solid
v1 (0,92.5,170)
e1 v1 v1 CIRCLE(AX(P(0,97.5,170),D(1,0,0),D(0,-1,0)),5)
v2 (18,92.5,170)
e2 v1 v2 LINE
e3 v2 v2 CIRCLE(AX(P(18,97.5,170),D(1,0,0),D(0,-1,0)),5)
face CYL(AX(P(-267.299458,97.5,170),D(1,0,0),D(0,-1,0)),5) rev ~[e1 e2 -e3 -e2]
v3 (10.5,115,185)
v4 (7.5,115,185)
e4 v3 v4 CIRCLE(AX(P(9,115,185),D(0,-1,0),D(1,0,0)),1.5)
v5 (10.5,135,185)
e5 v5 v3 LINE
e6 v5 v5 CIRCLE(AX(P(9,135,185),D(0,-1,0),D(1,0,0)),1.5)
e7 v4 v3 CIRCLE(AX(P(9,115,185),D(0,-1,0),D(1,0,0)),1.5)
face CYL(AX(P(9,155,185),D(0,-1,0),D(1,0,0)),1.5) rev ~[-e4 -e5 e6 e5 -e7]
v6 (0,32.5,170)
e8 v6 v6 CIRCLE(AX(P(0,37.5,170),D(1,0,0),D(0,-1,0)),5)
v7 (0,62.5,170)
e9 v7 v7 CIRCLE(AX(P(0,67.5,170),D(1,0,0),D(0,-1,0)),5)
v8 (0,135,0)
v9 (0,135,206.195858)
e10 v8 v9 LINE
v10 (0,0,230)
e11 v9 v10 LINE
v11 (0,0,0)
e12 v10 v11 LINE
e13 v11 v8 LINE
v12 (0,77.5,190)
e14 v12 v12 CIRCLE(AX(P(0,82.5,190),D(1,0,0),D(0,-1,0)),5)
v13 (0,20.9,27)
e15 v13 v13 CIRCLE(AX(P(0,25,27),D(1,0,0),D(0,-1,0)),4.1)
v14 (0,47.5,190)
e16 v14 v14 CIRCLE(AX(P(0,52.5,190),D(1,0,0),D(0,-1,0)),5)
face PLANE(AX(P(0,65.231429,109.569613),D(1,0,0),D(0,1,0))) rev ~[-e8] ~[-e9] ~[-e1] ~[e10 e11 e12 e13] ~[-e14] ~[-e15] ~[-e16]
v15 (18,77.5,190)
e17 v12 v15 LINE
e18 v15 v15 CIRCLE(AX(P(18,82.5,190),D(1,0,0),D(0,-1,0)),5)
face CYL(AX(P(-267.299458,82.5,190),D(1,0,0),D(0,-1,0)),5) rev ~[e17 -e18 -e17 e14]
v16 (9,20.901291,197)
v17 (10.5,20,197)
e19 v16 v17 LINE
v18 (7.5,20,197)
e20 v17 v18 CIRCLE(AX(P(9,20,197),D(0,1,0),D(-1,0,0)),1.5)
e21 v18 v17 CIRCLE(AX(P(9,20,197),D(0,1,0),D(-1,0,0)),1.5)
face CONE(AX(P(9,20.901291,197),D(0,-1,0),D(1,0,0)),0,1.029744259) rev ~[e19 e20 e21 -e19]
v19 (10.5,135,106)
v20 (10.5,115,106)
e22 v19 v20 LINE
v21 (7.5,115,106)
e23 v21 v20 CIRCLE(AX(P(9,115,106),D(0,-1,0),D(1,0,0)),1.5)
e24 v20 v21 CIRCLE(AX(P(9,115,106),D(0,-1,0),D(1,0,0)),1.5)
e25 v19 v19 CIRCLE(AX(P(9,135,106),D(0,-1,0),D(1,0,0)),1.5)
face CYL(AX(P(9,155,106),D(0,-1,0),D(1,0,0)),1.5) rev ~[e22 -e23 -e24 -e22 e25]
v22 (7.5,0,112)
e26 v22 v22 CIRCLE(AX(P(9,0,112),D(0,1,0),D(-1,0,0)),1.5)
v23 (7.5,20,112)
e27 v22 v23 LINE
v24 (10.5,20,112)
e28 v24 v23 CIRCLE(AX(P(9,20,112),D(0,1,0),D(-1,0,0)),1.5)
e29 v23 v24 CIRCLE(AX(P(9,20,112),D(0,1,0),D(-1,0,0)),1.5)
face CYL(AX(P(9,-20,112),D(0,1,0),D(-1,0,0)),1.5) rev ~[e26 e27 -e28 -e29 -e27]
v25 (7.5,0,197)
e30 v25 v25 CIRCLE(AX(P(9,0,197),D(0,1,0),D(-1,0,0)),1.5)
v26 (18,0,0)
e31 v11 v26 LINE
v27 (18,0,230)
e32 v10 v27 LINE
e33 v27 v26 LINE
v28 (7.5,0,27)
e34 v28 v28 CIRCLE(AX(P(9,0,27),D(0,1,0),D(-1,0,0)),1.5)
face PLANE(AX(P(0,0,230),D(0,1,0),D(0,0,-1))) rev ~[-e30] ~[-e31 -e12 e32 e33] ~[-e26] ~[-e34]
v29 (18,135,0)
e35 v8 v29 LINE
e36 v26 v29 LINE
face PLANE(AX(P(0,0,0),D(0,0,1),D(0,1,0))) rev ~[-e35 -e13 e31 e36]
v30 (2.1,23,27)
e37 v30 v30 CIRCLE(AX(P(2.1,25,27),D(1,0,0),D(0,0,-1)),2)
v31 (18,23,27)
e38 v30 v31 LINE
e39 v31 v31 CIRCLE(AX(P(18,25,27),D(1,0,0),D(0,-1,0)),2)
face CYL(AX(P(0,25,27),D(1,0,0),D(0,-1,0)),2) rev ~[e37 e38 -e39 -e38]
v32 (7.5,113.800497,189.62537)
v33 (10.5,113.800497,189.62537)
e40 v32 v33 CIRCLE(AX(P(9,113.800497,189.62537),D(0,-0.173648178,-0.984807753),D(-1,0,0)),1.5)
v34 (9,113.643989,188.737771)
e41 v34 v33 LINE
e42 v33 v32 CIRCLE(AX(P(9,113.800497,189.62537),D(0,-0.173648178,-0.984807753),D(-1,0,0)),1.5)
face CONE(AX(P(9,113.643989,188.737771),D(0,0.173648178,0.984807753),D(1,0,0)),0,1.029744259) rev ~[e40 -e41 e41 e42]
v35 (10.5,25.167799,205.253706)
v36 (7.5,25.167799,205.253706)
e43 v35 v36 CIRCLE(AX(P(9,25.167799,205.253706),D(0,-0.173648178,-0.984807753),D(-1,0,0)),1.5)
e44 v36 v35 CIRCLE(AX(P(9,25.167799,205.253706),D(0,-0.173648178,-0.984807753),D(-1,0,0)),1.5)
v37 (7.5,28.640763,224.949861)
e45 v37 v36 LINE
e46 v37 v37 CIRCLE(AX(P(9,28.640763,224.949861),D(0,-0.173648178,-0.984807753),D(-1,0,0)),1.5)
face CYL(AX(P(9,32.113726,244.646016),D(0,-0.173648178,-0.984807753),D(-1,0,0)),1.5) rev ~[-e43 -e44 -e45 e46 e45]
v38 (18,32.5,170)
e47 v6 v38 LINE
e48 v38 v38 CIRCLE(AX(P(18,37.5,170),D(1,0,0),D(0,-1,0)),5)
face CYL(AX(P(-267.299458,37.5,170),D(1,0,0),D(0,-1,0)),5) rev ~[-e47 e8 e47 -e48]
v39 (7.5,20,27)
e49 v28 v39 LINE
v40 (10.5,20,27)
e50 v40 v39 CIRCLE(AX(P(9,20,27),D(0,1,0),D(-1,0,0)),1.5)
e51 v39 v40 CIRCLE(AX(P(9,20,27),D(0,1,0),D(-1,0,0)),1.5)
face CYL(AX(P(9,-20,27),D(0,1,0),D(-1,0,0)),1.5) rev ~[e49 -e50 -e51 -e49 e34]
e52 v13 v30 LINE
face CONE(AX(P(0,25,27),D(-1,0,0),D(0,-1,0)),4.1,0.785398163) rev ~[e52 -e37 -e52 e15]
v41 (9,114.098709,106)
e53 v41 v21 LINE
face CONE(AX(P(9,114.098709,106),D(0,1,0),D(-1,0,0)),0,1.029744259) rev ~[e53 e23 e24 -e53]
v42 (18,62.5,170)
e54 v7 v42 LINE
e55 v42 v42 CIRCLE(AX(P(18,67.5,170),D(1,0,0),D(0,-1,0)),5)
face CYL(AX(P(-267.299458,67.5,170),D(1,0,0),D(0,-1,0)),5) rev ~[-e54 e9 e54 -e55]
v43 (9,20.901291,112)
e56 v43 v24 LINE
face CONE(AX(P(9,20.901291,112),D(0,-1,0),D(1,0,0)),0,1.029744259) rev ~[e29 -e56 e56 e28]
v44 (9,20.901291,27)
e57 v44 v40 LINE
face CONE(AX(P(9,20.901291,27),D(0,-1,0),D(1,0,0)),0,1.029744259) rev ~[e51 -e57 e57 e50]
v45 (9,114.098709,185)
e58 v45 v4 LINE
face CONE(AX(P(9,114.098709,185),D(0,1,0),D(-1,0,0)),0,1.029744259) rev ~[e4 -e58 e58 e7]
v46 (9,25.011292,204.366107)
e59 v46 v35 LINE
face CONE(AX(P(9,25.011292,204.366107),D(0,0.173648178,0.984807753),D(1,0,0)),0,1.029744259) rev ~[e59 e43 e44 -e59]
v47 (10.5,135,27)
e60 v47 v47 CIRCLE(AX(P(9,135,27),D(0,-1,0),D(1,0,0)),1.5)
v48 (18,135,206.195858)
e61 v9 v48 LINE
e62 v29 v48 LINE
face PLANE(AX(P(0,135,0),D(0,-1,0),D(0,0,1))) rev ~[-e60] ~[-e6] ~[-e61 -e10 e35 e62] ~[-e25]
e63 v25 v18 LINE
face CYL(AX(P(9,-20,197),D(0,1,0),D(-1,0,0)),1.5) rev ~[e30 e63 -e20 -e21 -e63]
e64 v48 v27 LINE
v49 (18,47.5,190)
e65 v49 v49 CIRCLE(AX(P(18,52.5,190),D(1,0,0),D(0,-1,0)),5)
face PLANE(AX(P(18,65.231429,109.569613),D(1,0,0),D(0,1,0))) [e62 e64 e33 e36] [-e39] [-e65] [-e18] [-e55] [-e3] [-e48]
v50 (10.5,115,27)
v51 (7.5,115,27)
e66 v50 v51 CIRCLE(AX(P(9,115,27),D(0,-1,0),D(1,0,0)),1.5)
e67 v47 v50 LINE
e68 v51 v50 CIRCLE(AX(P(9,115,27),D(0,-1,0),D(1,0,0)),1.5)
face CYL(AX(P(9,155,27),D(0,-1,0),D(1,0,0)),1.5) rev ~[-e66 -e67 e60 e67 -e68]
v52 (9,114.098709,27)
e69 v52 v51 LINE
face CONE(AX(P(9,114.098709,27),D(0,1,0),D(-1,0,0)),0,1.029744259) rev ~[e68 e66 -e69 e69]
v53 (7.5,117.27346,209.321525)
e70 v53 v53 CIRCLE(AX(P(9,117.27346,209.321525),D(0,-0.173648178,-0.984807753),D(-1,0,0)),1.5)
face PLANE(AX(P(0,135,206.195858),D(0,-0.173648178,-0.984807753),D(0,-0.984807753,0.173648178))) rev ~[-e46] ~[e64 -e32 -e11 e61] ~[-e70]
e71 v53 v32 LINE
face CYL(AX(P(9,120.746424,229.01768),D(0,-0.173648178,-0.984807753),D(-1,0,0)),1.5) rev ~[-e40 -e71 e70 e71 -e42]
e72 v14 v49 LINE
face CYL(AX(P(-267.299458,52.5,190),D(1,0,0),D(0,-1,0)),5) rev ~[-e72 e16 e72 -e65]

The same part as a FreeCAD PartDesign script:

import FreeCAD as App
import Part
import Sketcher
from FreeCAD import Vector
Q = App.Units.Quantity

doc = App.newDocument("Part")
body = doc.addObject("PartDesign::Body", "Body")

# Sketch on YZ plane
sketch1 = body.newObject("Sketcher::SketchObject", "Sketch")
sketch1.AttachmentSupport = (doc.getObject("YZ_Plane"), [""])
sketch1.MapMode = "FlatFace"
sketch1.addGeometry([
    Part.LineSegment(Vector(0, 230, 0), Vector(0, 0, 0)),
    Part.LineSegment(Vector(0, 0, 0), Vector(135, 0, 0)),
    Part.LineSegment(Vector(135, 0, 0), Vector(135, 206, 0)),
    Part.LineSegment(Vector(135, 206, 0), Vector(0, 230, 0)),
], False)
sketch1.addConstraint([
    Sketcher.Constraint("Coincident", 0, 2, 1, 1),
    Sketcher.Constraint("Coincident", 1, 2, 2, 1),
    Sketcher.Constraint("Coincident", 2, 2, 3, 1),
    Sketcher.Constraint("Coincident", 3, 2, 0, 1),
    Sketcher.Constraint("Vertical", 0),
    Sketcher.Constraint("Horizontal", 1),
    Sketcher.Constraint("Vertical", 2),
    Sketcher.Constraint("Coincident", 0, 2, -1, 1),
    Sketcher.Constraint("DistanceX", 1, 1, 1, 2, Q("135 mm")),
    Sketcher.Constraint("DistanceY", 0, 2, 0, 1, Q("230 mm")),
    Sketcher.Constraint("Angle", 3, Q("170 deg")),
])
pad1 = body.newObject("PartDesign::Pad", "Pad")
pad1.Profile = sketch1
pad1.Length = 18

# Sketch on YZ plane
sketch2 = body.newObject("Sketcher::SketchObject", "Sketch001")
sketch2.AttachmentSupport = (doc.getObject("YZ_Plane"), [""])
sketch2.MapMode = "FlatFace"
sketch2.addGeometry([
    Part.Circle(Vector(38, 170, 0), Vector(0, 0, 1), 5),
    Part.Circle(Vector(68, 170, 0), Vector(0, 0, 1), 5),
    Part.Circle(Vector(98, 170, 0), Vector(0, 0, 1), 5),
], False)
sketch2.addConstraint([
    Sketcher.Constraint("Equal", 0, 1),
    Sketcher.Constraint("Equal", 1, 2),
    Sketcher.Constraint("Horizontal", 0, 3, 1, 3),
    Sketcher.Constraint("Horizontal", 1, 3, 2, 3),
    Sketcher.Constraint("Diameter", 0, Q("10 mm")),
    Sketcher.Constraint("DistanceY", -1, 1, 0, 3, Q("170 mm")),
    Sketcher.Constraint("DistanceX", 0, 3, 1, 3, Q("30 mm")),
    Sketcher.Constraint("DistanceX", 1, 3, 2, 3, Q("30 mm")),
    Sketcher.Constraint("DistanceX", -1, 1, 0, 3, Q("37.5 mm")),
])
doc.recompute()
hole = body.newObject("PartDesign::Hole", "Hole")
hole.Profile = sketch2
hole.ThreadType = "None"
hole.Diameter = 10
hole.DepthType = "ThroughAll"
hole.Reversed = True

# Sketch on YZ plane
sketch3 = body.newObject("Sketcher::SketchObject", "Sketch002")
sketch3.AttachmentSupport = (doc.getObject("YZ_Plane"), [""])
sketch3.MapMode = "FlatFace"
sketch3.addGeometry([
    Part.Circle(Vector(52, 190, 0), Vector(0, 0, 1), 5),
    Part.Circle(Vector(82, 190, 0), Vector(0, 0, 1), 5),
], False)
sketch3.addConstraint([
    Sketcher.Constraint("Equal", 0, 1),
    Sketcher.Constraint("Horizontal", 0, 3, 1, 3),
    Sketcher.Constraint("Diameter", 0, Q("10 mm")),
    Sketcher.Constraint("DistanceY", -1, 1, 0, 3, Q("190 mm")),
    Sketcher.Constraint("DistanceX", 0, 3, 1, 3, Q("30 mm")),
    Sketcher.Constraint("DistanceX", -1, 1, 0, 3, Q("52.5 mm")),
])
doc.recompute()
hole2 = body.newObject("PartDesign::Hole", "Hole001")
hole2.Profile = sketch3
hole2.ThreadType = "None"
hole2.Diameter = 10
hole2.DepthType = "ThroughAll"
hole2.Reversed = True

# Sketch on YZ plane
sketch4 = body.newObject("Sketcher::SketchObject", "Sketch003")
sketch4.AttachmentSupport = (doc.getObject("YZ_Plane"), [""])
sketch4.MapMode = "FlatFace"
sketch4.addGeometry(Part.Circle(Vector(25, 27, 0), Vector(0, 0, 1), 2), False)
sketch4.addConstraint([
    Sketcher.Constraint("Diameter", 0, Q("4 mm")),
    Sketcher.Constraint("DistanceX", -1, 1, 0, 3, Q("25 mm")),
    Sketcher.Constraint("DistanceY", -1, 1, 0, 3, Q("27 mm")),
])
doc.recompute()
hole3 = body.newObject("PartDesign::Hole", "Hole002")
hole3.Profile = sketch4
hole3.ThreadType = "None"
hole3.Diameter = 4
hole3.DepthType = "ThroughAll"
hole3.HoleCutType = "Countersink"
hole3.HoleCutDiameter = 8.2
hole3.HoleCutCountersinkAngle = 90
hole3.Reversed = True

# Sketch on XZ plane
sketch5 = body.newObject("Sketcher::SketchObject", "Sketch004")
sketch5.AttachmentSupport = (doc.getObject("XZ_Plane"), [""])
sketch5.MapMode = "FlatFace"
sketch5.AttachmentOffset = App.Placement(Vector(0, 0, -135), App.Rotation())
sketch5.addGeometry([
    Part.Circle(Vector(9, 27, 0), Vector(0, 0, 1), 1.5),
    Part.Circle(Vector(9, 106, 0), Vector(0, 0, 1), 1.5),
    Part.Circle(Vector(9, 185, 0), Vector(0, 0, 1), 1.5),
], False)
sketch5.addConstraint([
    Sketcher.Constraint("Equal", 0, 1),
    Sketcher.Constraint("Equal", 1, 2),
    Sketcher.Constraint("Vertical", 0, 3, 1, 3),
    Sketcher.Constraint("Vertical", 1, 3, 2, 3),
    Sketcher.Constraint("Diameter", 0, Q("3 mm")),
    Sketcher.Constraint("DistanceX", -1, 1, 0, 3, Q("9 mm")),
    Sketcher.Constraint("DistanceY", -1, 1, 0, 3, Q("27 mm")),
    Sketcher.Constraint("DistanceY", -1, 1, 1, 3, Q("106 mm")),
    Sketcher.Constraint("DistanceY", -1, 1, 2, 3, Q("185 mm")),
])
doc.recompute()
hole4 = body.newObject("PartDesign::Hole", "Hole003")
hole4.Profile = sketch5
hole4.ThreadType = "None"
hole4.Diameter = 3
hole4.DepthType = "Dimension"
hole4.Depth = 20
hole4.DrillPoint = "Angled"
hole4.DrillPointAngle = 118
hole4.Reversed = True

# Sketch on XZ plane
sketch6 = body.newObject("Sketcher::SketchObject", "Sketch005")
sketch6.AttachmentSupport = (doc.getObject("XZ_Plane"), [""])
sketch6.MapMode = "FlatFace"
sketch6.addGeometry([
    Part.Circle(Vector(9, 27, 0), Vector(0, 0, 1), 1.5),
    Part.Circle(Vector(9, 112, 0), Vector(0, 0, 1), 1.5),
    Part.Circle(Vector(9, 197, 0), Vector(0, 0, 1), 1.5),
], False)
sketch6.addConstraint([
    Sketcher.Constraint("Equal", 0, 1),
    Sketcher.Constraint("Equal", 1, 2),
    Sketcher.Constraint("Vertical", 0, 3, 1, 3),
    Sketcher.Constraint("Vertical", 1, 3, 2, 3),
    Sketcher.Constraint("Diameter", 0, Q("3 mm")),
    Sketcher.Constraint("DistanceX", -1, 1, 0, 3, Q("9 mm")),
    Sketcher.Constraint("DistanceY", -1, 1, 0, 3, Q("27 mm")),
    Sketcher.Constraint("DistanceY", -1, 1, 1, 3, Q("112 mm")),
    Sketcher.Constraint("DistanceY", -1, 1, 2, 3, Q("197 mm")),
])
doc.recompute()
hole5 = body.newObject("PartDesign::Hole", "Hole004")
hole5.Profile = sketch6
hole5.ThreadType = "None"
hole5.Diameter = 3
hole5.DepthType = "Dimension"
hole5.Depth = 20
hole5.DrillPoint = "Angled"
hole5.DrillPointAngle = 118

# Sketch on an angled plane
sketch7 = body.newObject("Sketcher::SketchObject", "Sketch006")
sketch7.Placement = App.Placement(Vector(0, 39.332316, 223.064651), App.Rotation(Vector(1, 0, 0), Vector(0, 0.984807753, -0.173648178), Vector(0, 0.173648178, 0.984807753), "ZXY"))
sketch7.addGeometry([
    Part.Circle(Vector(9, -10.9, 0), Vector(0, 0, 1), 1.5),
    Part.Circle(Vector(9, 79.1, 0), Vector(0, 0, 1), 1.5),
], False)
sketch7.addConstraint([
    Sketcher.Constraint("Equal", 0, 1),
    Sketcher.Constraint("Vertical", 0, 3, 1, 3),
    Sketcher.Constraint("Diameter", 0, Q("3 mm")),
    Sketcher.Constraint("DistanceX", -1, 1, 0, 3, Q("9 mm")),
    Sketcher.Constraint("DistanceY", 0, 3, 1, 3, Q("90 mm")),
    Sketcher.Constraint("DistanceY", 0, 3, -1, 1, Q("10.856488 mm")),
])
doc.recompute()
hole6 = body.newObject("PartDesign::Hole", "Hole005")
hole6.Profile = sketch7
hole6.ThreadType = "None"
hole6.Diameter = 3
hole6.DepthType = "Dimension"
hole6.Depth = 20
hole6.DrillPoint = "Angled"
hole6.DrillPointAngle = 118

doc.recompute()
